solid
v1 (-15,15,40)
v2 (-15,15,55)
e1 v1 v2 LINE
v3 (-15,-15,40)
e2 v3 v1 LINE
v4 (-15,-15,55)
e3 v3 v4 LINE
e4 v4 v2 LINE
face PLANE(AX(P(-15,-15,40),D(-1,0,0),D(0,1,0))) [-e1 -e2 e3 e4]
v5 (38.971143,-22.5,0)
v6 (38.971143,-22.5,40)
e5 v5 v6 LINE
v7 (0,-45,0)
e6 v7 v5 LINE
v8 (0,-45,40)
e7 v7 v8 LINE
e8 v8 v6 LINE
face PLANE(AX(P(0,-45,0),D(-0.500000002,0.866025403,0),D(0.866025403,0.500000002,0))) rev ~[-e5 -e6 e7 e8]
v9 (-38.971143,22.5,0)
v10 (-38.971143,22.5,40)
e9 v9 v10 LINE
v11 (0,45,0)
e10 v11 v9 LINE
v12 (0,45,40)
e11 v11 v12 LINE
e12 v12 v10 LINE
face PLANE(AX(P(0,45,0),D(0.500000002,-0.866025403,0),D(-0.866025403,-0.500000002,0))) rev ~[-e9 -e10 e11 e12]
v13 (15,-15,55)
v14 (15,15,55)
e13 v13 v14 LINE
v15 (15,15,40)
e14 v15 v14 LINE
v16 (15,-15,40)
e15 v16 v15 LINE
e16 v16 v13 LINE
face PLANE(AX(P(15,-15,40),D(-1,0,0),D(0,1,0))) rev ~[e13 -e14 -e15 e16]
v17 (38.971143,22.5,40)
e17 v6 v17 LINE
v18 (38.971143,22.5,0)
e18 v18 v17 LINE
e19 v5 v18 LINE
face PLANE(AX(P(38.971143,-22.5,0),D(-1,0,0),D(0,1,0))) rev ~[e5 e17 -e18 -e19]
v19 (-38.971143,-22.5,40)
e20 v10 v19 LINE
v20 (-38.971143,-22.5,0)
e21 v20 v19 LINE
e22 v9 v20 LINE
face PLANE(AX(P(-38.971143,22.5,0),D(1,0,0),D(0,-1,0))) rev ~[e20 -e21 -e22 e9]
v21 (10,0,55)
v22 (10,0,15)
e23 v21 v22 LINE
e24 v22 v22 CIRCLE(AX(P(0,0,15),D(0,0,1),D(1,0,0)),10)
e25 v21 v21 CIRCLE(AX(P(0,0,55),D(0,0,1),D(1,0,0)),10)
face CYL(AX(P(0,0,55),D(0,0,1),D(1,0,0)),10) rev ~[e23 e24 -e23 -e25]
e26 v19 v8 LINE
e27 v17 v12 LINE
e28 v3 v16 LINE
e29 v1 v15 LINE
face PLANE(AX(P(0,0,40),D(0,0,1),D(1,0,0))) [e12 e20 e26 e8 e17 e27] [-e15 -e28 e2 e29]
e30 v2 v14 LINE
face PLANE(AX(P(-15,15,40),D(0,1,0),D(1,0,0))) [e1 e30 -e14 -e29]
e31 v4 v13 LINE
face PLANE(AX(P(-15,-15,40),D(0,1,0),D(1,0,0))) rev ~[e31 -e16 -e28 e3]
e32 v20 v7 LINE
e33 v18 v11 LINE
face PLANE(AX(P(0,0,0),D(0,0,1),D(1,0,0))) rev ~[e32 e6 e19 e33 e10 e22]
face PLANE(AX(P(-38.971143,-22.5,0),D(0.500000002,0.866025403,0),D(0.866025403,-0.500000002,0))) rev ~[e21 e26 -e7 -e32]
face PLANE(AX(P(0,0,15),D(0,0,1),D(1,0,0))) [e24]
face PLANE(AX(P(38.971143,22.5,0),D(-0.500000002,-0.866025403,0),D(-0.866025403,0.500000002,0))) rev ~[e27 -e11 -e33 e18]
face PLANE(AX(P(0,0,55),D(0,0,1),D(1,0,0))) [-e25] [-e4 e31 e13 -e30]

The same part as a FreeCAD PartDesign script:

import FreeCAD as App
import Part
import Sketcher

V = App.Vector
Q = App.Units.Quantity

doc = App.newDocument("Part")
body = doc.addObject("PartDesign::Body", "Body")

# Sketch on XY plane
sketch1 = body.newObject("Sketcher::SketchObject", "Sketch")
sketch1.AttachmentSupport = (doc.getObject("XY_Plane"), [""])
sketch1.MapMode = "FlatFace"
sketch1.addGeometry([
    Part.LineSegment(V(39, -22, 0), V(39, 22, 0)),  # 0
    Part.LineSegment(V(39, 22, 0), V(0, 45, 0)),  # 1
    Part.LineSegment(V(0, 45, 0), V(-39, 22, 0)),  # 2
    Part.LineSegment(V(-39, 22, 0), V(-39, -22, 0)),  # 3
    Part.LineSegment(V(-39, -22, 0), V(0, -45, 0)),  # 4
    Part.LineSegment(V(0, -45, 0), V(39, -22, 0)),  # 5
], False)
sketch1.addConstraint([
    Sketcher.Constraint("Coincident", 0, 2, 1, 1),
    Sketcher.Constraint("Coincident", 1, 2, 2, 1),
    Sketcher.Constraint("Coincident", 2, 2, 3, 1),
    Sketcher.Constraint("Coincident", 3, 2, 4, 1),
    Sketcher.Constraint("Coincident", 4, 2, 5, 1),
    Sketcher.Constraint("Coincident", 5, 2, 0, 1),
    Sketcher.Constraint("Vertical", 0),
    Sketcher.Constraint("Vertical", 3),
    Sketcher.Constraint("Symmetric", 0, 2, 3, 2, -1, 1),
    Sketcher.Constraint("Symmetric", 1, 2, 4, 2, -1, 1),
    Sketcher.Constraint("PointOnObject", 1, 2, -2),
    Sketcher.Constraint("Parallel", 2, 5),
    Sketcher.Constraint("Horizontal", 0, 2, 2, 2),
    Sketcher.Constraint("DistanceY", 0, 1, 0, 2, Q("45 mm")),
    Sketcher.Constraint("Angle", 1, Q("150 deg")),
    Sketcher.Constraint("Distance", 1, Q("45 mm")),
])
pad1 = body.newObject("PartDesign::Pad", "Pad")
pad1.Profile = sketch1
pad1.Length = 40

# Sketch on XY plane
sketch2 = body.newObject("Sketcher::SketchObject", "Sketch001")
sketch2.AttachmentSupport = (doc.getObject("XY_Plane"), [""])
sketch2.MapMode = "FlatFace"
sketch2.AttachmentOffset = App.Placement(V(0, 0, 40), App.Rotation())
sketch2.addGeometry([
    Part.LineSegment(V(-15, 15, 0), V(-15, -15, 0)),
    Part.LineSegment(V(-15, -15, 0), V(15, -15, 0)),
    Part.LineSegment(V(15, -15, 0), V(15, 15, 0)),
    Part.LineSegment(V(15, 15, 0), V(-15, 15, 0)),
], False)
sketch2.addConstraint([
    Sketcher.Constraint("Coincident", 0, 2, 1, 1),
    Sketcher.Constraint("Coincident", 1, 2, 2, 1),
    Sketcher.Constraint("Coincident", 2, 2, 3, 1),
    Sketcher.Constraint("Coincident", 3, 2, 0, 1),
    Sketcher.Constraint("Vertical", 0),
    Sketcher.Constraint("Horizontal", 1),
    Sketcher.Constraint("Vertical", 2),
    Sketcher.Constraint("Horizontal", 3),
    Sketcher.Constraint("Symmetric", 0, 2, 2, 2, -1, 1),
    Sketcher.Constraint("Equal", 3, 0),
    Sketcher.Constraint("DistanceX", 1, 1, 1, 2, Q("30 mm")),
])
pad2 = body.newObject("PartDesign::Pad", "Pad001")
pad2.Profile = sketch2
pad2.Length = 15

# Sketch on XY plane
sketch3 = body.newObject("Sketcher::SketchObject", "Sketch002")
sketch3.AttachmentSupport = (doc.getObject("XY_Plane"), [""])
sketch3.MapMode = "FlatFace"
sketch3.AttachmentOffset = App.Placement(V(0, 0, 55), App.Rotation())
sketch3.addGeometry(Part.Circle(V(0, 0, 0), V(0, 0, 1), 10), False)
sketch3.addConstraint([
    Sketcher.Constraint("Coincident", 0, 3, -1, 1),
    Sketcher.Constraint("Diameter", 0, Q("20 mm")),
])
pocket1 = body.newObject("PartDesign::Pocket", "Pocket")
pocket1.Profile = sketch3
pocket1.Length = 40

doc.recompute()
